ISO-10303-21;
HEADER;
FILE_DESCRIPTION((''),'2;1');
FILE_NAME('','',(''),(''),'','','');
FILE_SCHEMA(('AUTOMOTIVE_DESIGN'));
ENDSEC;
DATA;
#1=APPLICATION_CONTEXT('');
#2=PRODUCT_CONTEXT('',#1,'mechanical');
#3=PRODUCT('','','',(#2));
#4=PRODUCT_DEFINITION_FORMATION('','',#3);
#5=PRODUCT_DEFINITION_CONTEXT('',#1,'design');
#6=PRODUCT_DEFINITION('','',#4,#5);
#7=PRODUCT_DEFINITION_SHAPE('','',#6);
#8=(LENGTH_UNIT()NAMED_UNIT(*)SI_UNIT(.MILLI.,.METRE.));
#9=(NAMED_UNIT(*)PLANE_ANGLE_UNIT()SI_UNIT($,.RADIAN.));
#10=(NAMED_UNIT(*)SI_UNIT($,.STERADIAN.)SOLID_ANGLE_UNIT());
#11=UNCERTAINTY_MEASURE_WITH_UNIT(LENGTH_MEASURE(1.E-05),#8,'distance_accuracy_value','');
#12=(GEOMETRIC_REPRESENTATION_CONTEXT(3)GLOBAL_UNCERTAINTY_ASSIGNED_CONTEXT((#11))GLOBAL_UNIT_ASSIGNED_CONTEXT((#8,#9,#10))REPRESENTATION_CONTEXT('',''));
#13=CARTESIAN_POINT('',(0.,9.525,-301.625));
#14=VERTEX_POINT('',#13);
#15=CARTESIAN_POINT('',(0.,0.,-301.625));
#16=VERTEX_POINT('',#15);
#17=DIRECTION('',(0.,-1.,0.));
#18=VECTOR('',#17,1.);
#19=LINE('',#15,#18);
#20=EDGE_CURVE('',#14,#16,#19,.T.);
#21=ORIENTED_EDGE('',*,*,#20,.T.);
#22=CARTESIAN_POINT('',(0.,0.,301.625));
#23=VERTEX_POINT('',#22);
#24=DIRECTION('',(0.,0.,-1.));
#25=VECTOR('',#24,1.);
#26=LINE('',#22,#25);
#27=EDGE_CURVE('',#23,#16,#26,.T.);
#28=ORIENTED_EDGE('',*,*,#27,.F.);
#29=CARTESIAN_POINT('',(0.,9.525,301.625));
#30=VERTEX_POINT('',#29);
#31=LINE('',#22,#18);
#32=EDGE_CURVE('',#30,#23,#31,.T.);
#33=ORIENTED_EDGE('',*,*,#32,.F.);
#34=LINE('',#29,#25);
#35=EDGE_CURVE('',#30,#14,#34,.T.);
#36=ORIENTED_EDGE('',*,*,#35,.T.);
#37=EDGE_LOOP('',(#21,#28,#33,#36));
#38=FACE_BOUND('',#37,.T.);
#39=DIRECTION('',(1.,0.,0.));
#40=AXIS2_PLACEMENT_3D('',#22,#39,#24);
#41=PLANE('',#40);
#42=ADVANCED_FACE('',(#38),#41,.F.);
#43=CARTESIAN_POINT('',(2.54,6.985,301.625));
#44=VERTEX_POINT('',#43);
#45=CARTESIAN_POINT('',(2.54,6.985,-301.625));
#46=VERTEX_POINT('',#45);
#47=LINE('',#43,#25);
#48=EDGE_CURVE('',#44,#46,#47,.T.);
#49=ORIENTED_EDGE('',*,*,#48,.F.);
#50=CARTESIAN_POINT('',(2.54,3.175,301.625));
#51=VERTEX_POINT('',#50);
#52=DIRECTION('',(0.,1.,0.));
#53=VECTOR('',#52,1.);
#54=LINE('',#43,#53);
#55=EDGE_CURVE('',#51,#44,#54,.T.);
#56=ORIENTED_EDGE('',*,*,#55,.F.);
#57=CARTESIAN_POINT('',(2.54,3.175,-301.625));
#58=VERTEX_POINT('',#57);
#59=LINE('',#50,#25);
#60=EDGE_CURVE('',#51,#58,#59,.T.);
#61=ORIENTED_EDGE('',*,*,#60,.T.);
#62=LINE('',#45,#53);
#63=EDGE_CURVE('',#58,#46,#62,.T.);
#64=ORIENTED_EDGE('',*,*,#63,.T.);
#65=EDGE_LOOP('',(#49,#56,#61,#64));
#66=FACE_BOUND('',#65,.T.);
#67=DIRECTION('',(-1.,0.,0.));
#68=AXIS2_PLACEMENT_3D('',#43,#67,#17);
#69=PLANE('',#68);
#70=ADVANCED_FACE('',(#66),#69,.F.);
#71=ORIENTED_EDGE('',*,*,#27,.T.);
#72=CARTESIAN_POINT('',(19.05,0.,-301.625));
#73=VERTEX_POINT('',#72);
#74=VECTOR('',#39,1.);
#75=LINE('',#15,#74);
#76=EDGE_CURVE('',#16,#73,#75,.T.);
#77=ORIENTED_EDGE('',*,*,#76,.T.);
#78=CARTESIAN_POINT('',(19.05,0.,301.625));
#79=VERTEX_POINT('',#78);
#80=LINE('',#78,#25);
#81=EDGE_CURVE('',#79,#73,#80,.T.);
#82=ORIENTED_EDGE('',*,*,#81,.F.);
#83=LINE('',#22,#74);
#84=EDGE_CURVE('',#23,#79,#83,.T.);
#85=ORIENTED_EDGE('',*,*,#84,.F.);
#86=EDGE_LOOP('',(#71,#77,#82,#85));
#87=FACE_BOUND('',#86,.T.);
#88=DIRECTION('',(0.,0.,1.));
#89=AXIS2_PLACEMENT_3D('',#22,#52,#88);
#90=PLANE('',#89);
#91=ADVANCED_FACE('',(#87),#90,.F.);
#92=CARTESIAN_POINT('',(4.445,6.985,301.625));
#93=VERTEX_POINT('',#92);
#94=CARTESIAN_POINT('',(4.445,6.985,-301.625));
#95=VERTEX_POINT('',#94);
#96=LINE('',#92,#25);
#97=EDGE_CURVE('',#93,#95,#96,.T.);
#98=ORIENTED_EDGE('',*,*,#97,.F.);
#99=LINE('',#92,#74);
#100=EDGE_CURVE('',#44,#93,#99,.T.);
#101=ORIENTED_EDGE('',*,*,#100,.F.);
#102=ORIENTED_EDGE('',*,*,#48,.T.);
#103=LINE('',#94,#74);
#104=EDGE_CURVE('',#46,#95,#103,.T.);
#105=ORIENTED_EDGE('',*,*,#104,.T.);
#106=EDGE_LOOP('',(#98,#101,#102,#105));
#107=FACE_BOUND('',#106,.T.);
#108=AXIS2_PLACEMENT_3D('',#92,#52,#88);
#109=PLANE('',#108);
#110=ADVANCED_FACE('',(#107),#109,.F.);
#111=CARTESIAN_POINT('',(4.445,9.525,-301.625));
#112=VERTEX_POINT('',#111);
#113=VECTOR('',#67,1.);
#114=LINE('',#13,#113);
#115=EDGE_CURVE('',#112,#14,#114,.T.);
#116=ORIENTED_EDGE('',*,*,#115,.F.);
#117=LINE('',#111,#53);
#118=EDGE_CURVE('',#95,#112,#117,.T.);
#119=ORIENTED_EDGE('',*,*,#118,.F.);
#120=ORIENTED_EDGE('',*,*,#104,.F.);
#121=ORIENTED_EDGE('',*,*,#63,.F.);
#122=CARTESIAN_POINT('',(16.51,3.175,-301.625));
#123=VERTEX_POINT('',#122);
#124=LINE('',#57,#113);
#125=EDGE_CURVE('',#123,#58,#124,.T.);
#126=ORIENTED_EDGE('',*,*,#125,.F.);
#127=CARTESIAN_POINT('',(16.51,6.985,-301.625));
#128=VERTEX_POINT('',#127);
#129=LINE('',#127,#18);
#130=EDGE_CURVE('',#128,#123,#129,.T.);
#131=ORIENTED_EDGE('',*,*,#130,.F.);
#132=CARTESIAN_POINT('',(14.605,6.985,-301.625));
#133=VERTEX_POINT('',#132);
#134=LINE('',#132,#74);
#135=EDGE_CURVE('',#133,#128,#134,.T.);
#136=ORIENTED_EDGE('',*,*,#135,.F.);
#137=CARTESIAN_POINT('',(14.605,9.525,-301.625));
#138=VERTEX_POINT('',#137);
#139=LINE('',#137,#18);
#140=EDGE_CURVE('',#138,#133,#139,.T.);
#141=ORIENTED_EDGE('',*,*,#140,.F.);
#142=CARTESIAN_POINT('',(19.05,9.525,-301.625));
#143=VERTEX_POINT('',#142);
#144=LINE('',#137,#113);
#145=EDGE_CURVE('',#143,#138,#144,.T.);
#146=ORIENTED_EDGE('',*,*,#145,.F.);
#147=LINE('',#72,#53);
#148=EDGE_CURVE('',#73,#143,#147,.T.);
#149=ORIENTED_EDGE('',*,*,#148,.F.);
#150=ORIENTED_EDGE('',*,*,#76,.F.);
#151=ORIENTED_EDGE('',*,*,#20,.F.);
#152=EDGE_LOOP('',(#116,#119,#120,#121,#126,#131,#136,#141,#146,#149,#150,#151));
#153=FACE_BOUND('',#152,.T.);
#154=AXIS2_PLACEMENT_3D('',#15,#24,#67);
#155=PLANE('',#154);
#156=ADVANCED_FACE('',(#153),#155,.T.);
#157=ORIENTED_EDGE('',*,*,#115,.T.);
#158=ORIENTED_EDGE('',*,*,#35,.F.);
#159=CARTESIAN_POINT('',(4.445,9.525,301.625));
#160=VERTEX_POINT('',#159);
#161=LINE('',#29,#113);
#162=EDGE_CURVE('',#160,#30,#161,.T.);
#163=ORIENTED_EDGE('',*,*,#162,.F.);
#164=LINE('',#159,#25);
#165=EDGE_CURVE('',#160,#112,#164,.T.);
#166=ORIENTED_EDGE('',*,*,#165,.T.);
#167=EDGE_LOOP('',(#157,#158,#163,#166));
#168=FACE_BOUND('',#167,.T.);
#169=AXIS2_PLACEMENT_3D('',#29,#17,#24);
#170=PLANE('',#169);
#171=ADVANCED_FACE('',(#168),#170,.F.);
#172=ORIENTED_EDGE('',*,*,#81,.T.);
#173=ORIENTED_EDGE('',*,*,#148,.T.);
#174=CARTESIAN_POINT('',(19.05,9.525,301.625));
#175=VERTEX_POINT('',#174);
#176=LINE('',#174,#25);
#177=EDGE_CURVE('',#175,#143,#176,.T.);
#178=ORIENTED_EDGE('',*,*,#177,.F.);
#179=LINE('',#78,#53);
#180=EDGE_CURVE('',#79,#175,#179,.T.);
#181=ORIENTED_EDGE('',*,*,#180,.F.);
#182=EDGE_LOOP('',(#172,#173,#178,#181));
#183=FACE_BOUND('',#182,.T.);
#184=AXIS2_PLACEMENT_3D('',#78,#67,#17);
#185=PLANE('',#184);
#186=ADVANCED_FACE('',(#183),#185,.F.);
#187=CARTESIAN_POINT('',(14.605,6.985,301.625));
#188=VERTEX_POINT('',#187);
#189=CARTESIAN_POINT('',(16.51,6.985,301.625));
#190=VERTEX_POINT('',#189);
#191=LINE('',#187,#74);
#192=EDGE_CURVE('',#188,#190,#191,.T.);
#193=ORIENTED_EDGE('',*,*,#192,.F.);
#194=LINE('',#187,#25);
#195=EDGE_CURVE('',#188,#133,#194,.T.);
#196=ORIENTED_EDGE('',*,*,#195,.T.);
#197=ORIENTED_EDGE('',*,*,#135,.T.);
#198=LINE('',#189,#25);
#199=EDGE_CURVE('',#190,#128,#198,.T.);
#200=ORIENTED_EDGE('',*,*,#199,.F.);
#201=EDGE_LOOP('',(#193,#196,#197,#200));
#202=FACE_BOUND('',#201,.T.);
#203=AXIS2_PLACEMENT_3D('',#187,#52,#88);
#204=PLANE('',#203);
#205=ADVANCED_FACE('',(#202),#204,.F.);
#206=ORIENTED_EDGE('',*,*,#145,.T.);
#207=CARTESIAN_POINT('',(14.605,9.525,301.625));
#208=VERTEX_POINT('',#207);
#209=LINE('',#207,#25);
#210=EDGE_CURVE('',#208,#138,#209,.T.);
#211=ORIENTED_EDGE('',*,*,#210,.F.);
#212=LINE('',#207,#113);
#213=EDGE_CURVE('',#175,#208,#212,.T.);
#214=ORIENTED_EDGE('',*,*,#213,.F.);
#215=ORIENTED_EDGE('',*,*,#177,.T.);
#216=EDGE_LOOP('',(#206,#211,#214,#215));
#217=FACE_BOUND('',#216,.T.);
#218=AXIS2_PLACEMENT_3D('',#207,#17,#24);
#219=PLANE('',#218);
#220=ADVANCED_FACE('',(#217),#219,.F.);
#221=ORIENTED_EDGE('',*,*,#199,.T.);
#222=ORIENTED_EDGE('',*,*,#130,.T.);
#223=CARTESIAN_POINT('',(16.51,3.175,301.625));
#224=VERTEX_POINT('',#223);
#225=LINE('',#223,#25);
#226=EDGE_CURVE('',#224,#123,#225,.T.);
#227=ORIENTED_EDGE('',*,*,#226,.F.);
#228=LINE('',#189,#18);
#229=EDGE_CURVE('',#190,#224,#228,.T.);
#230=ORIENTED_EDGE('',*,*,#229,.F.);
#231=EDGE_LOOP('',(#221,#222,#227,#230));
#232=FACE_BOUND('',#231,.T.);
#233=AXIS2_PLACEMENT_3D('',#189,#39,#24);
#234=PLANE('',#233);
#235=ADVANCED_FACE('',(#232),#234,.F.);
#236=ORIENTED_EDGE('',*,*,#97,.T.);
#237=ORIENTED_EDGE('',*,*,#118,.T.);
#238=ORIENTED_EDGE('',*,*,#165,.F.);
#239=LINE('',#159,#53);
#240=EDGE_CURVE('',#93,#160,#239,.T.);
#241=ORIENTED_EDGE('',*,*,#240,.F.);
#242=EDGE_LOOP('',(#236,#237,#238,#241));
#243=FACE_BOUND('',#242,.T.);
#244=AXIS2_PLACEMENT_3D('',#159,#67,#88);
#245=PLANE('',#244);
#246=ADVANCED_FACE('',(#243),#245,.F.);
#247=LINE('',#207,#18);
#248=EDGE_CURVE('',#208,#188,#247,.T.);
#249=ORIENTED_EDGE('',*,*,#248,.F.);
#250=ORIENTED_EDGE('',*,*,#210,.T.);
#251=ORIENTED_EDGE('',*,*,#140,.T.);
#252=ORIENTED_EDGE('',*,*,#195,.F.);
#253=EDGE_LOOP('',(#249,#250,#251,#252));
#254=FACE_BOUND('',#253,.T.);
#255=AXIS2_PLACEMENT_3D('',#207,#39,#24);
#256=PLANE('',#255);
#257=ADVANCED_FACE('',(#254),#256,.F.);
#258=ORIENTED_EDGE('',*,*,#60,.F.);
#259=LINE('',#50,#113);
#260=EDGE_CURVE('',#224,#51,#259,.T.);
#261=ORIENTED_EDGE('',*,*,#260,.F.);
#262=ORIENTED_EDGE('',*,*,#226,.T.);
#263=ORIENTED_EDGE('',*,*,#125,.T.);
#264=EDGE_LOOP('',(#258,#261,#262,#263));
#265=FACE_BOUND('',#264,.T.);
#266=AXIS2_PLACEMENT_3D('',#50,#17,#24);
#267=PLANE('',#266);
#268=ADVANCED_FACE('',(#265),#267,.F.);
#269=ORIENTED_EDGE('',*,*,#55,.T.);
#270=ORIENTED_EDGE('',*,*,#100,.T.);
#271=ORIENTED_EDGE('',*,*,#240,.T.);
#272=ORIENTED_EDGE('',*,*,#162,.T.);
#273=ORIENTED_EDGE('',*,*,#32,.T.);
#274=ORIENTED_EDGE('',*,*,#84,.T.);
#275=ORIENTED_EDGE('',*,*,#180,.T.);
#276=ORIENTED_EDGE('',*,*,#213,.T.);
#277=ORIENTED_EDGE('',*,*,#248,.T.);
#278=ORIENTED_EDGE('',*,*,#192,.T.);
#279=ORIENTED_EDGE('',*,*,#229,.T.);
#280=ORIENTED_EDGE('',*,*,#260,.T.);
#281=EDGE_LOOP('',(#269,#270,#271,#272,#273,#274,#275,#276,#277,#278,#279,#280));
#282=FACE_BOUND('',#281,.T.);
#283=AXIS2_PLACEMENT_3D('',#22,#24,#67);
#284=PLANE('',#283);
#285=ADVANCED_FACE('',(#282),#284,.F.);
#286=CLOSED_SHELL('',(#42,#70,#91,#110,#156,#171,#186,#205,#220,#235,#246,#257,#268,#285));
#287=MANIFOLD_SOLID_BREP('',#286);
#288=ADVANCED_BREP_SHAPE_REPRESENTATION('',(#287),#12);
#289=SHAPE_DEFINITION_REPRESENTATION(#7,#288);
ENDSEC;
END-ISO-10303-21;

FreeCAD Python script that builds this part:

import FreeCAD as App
import Part
import Sketcher
Q = App.Units.Quantity


def add_polygon(sketch, points):
    """Adds a closed chain of lines whose ends are joined by coincident constraints."""
    first, n = sketch.GeometryCount, len(points)
    for a, b in zip(points, points[1:] + points[:1]):
        sketch.addGeometry(Part.LineSegment(App.Vector(*a, 0), App.Vector(*b, 0)), False)
    for i in range(n):
        sketch.addConstraint(Sketcher.Constraint("Coincident", first + i, 2, first + (i + 1) % n, 1))

doc = App.newDocument("Part")
body = doc.addObject("PartDesign::Body", "Body")

# Sketch on XY plane
sketch1 = doc.addObject("Sketcher::SketchObject", "Sketch")
body.addObject(sketch1)
sketch1.AttachmentSupport = (doc.XY_Plane, [""])
sketch1.MapMode = "FlatFace"
add_polygon(sketch1, [(4.4, 7), (4.4, 9.5), (0, 9.5), (0, 0), (19.1, 0), (19.1, 9.5), (14.6, 9.5), (14.6, 7), (16.5, 7), (16.5, 3.2), (2.5, 3.2), (2.5, 7)])  # lines 0-11
sketch1.addConstraint(Sketcher.Constraint("Vertical", 0))
sketch1.addConstraint(Sketcher.Constraint("Horizontal", 1))
sketch1.addConstraint(Sketcher.Constraint("Vertical", 2))
sketch1.addConstraint(Sketcher.Constraint("Horizontal", 3))
sketch1.addConstraint(Sketcher.Constraint("Vertical", 4))
sketch1.addConstraint(Sketcher.Constraint("Horizontal", 5))
sketch1.addConstraint(Sketcher.Constraint("Vertical", 6))
sketch1.addConstraint(Sketcher.Constraint("Horizontal", 7))
sketch1.addConstraint(Sketcher.Constraint("Vertical", 8))
sketch1.addConstraint(Sketcher.Constraint("Horizontal", 9))
sketch1.addConstraint(Sketcher.Constraint("Vertical", 10))
sketch1.addConstraint(Sketcher.Constraint("Horizontal", 11))
sketch1.addConstraint(Sketcher.Constraint("Coincident", 2, 2, -1, 1))
sketch1.addConstraint(Sketcher.Constraint("Horizontal", 1, 2, 4, 2))
sketch1.addConstraint(Sketcher.Constraint("Horizontal", 7, 2, 10, 2))
sketch1.addConstraint(Sketcher.Constraint("Equal", 1, 5))
sketch1.addConstraint(Sketcher.Constraint("Equal", 7, 11))
sketch1.addConstraint(Sketcher.Constraint("DistanceY", 0, 1, 0, 2, Q("0.1 in")))
sketch1.addConstraint(Sketcher.Constraint("DistanceX", 3, 1, 3, 2, Q("0.75 in")))
sketch1.addConstraint(Sketcher.Constraint("DistanceX", 9, 2, 9, 1, Q("0.55 in")))
sketch1.addConstraint(Sketcher.Constraint("DistanceY", 8, 2, 8, 1, Q("0.15 in")))
sketch1.addConstraint(Sketcher.Constraint("DistanceX", 0, 2, 5, 2, Q("0.4 in")))
sketch1.addConstraint(Sketcher.Constraint("DistanceY", 2, 2, 2, 1, Q("0.375 in")))
pad1 = doc.addObject("PartDesign::Pad", "Pad")
body.addObject(pad1)
pad1.Profile = sketch1
pad1.Length = Q("23.75 in")
pad1.Midplane = True

doc.recompute()
